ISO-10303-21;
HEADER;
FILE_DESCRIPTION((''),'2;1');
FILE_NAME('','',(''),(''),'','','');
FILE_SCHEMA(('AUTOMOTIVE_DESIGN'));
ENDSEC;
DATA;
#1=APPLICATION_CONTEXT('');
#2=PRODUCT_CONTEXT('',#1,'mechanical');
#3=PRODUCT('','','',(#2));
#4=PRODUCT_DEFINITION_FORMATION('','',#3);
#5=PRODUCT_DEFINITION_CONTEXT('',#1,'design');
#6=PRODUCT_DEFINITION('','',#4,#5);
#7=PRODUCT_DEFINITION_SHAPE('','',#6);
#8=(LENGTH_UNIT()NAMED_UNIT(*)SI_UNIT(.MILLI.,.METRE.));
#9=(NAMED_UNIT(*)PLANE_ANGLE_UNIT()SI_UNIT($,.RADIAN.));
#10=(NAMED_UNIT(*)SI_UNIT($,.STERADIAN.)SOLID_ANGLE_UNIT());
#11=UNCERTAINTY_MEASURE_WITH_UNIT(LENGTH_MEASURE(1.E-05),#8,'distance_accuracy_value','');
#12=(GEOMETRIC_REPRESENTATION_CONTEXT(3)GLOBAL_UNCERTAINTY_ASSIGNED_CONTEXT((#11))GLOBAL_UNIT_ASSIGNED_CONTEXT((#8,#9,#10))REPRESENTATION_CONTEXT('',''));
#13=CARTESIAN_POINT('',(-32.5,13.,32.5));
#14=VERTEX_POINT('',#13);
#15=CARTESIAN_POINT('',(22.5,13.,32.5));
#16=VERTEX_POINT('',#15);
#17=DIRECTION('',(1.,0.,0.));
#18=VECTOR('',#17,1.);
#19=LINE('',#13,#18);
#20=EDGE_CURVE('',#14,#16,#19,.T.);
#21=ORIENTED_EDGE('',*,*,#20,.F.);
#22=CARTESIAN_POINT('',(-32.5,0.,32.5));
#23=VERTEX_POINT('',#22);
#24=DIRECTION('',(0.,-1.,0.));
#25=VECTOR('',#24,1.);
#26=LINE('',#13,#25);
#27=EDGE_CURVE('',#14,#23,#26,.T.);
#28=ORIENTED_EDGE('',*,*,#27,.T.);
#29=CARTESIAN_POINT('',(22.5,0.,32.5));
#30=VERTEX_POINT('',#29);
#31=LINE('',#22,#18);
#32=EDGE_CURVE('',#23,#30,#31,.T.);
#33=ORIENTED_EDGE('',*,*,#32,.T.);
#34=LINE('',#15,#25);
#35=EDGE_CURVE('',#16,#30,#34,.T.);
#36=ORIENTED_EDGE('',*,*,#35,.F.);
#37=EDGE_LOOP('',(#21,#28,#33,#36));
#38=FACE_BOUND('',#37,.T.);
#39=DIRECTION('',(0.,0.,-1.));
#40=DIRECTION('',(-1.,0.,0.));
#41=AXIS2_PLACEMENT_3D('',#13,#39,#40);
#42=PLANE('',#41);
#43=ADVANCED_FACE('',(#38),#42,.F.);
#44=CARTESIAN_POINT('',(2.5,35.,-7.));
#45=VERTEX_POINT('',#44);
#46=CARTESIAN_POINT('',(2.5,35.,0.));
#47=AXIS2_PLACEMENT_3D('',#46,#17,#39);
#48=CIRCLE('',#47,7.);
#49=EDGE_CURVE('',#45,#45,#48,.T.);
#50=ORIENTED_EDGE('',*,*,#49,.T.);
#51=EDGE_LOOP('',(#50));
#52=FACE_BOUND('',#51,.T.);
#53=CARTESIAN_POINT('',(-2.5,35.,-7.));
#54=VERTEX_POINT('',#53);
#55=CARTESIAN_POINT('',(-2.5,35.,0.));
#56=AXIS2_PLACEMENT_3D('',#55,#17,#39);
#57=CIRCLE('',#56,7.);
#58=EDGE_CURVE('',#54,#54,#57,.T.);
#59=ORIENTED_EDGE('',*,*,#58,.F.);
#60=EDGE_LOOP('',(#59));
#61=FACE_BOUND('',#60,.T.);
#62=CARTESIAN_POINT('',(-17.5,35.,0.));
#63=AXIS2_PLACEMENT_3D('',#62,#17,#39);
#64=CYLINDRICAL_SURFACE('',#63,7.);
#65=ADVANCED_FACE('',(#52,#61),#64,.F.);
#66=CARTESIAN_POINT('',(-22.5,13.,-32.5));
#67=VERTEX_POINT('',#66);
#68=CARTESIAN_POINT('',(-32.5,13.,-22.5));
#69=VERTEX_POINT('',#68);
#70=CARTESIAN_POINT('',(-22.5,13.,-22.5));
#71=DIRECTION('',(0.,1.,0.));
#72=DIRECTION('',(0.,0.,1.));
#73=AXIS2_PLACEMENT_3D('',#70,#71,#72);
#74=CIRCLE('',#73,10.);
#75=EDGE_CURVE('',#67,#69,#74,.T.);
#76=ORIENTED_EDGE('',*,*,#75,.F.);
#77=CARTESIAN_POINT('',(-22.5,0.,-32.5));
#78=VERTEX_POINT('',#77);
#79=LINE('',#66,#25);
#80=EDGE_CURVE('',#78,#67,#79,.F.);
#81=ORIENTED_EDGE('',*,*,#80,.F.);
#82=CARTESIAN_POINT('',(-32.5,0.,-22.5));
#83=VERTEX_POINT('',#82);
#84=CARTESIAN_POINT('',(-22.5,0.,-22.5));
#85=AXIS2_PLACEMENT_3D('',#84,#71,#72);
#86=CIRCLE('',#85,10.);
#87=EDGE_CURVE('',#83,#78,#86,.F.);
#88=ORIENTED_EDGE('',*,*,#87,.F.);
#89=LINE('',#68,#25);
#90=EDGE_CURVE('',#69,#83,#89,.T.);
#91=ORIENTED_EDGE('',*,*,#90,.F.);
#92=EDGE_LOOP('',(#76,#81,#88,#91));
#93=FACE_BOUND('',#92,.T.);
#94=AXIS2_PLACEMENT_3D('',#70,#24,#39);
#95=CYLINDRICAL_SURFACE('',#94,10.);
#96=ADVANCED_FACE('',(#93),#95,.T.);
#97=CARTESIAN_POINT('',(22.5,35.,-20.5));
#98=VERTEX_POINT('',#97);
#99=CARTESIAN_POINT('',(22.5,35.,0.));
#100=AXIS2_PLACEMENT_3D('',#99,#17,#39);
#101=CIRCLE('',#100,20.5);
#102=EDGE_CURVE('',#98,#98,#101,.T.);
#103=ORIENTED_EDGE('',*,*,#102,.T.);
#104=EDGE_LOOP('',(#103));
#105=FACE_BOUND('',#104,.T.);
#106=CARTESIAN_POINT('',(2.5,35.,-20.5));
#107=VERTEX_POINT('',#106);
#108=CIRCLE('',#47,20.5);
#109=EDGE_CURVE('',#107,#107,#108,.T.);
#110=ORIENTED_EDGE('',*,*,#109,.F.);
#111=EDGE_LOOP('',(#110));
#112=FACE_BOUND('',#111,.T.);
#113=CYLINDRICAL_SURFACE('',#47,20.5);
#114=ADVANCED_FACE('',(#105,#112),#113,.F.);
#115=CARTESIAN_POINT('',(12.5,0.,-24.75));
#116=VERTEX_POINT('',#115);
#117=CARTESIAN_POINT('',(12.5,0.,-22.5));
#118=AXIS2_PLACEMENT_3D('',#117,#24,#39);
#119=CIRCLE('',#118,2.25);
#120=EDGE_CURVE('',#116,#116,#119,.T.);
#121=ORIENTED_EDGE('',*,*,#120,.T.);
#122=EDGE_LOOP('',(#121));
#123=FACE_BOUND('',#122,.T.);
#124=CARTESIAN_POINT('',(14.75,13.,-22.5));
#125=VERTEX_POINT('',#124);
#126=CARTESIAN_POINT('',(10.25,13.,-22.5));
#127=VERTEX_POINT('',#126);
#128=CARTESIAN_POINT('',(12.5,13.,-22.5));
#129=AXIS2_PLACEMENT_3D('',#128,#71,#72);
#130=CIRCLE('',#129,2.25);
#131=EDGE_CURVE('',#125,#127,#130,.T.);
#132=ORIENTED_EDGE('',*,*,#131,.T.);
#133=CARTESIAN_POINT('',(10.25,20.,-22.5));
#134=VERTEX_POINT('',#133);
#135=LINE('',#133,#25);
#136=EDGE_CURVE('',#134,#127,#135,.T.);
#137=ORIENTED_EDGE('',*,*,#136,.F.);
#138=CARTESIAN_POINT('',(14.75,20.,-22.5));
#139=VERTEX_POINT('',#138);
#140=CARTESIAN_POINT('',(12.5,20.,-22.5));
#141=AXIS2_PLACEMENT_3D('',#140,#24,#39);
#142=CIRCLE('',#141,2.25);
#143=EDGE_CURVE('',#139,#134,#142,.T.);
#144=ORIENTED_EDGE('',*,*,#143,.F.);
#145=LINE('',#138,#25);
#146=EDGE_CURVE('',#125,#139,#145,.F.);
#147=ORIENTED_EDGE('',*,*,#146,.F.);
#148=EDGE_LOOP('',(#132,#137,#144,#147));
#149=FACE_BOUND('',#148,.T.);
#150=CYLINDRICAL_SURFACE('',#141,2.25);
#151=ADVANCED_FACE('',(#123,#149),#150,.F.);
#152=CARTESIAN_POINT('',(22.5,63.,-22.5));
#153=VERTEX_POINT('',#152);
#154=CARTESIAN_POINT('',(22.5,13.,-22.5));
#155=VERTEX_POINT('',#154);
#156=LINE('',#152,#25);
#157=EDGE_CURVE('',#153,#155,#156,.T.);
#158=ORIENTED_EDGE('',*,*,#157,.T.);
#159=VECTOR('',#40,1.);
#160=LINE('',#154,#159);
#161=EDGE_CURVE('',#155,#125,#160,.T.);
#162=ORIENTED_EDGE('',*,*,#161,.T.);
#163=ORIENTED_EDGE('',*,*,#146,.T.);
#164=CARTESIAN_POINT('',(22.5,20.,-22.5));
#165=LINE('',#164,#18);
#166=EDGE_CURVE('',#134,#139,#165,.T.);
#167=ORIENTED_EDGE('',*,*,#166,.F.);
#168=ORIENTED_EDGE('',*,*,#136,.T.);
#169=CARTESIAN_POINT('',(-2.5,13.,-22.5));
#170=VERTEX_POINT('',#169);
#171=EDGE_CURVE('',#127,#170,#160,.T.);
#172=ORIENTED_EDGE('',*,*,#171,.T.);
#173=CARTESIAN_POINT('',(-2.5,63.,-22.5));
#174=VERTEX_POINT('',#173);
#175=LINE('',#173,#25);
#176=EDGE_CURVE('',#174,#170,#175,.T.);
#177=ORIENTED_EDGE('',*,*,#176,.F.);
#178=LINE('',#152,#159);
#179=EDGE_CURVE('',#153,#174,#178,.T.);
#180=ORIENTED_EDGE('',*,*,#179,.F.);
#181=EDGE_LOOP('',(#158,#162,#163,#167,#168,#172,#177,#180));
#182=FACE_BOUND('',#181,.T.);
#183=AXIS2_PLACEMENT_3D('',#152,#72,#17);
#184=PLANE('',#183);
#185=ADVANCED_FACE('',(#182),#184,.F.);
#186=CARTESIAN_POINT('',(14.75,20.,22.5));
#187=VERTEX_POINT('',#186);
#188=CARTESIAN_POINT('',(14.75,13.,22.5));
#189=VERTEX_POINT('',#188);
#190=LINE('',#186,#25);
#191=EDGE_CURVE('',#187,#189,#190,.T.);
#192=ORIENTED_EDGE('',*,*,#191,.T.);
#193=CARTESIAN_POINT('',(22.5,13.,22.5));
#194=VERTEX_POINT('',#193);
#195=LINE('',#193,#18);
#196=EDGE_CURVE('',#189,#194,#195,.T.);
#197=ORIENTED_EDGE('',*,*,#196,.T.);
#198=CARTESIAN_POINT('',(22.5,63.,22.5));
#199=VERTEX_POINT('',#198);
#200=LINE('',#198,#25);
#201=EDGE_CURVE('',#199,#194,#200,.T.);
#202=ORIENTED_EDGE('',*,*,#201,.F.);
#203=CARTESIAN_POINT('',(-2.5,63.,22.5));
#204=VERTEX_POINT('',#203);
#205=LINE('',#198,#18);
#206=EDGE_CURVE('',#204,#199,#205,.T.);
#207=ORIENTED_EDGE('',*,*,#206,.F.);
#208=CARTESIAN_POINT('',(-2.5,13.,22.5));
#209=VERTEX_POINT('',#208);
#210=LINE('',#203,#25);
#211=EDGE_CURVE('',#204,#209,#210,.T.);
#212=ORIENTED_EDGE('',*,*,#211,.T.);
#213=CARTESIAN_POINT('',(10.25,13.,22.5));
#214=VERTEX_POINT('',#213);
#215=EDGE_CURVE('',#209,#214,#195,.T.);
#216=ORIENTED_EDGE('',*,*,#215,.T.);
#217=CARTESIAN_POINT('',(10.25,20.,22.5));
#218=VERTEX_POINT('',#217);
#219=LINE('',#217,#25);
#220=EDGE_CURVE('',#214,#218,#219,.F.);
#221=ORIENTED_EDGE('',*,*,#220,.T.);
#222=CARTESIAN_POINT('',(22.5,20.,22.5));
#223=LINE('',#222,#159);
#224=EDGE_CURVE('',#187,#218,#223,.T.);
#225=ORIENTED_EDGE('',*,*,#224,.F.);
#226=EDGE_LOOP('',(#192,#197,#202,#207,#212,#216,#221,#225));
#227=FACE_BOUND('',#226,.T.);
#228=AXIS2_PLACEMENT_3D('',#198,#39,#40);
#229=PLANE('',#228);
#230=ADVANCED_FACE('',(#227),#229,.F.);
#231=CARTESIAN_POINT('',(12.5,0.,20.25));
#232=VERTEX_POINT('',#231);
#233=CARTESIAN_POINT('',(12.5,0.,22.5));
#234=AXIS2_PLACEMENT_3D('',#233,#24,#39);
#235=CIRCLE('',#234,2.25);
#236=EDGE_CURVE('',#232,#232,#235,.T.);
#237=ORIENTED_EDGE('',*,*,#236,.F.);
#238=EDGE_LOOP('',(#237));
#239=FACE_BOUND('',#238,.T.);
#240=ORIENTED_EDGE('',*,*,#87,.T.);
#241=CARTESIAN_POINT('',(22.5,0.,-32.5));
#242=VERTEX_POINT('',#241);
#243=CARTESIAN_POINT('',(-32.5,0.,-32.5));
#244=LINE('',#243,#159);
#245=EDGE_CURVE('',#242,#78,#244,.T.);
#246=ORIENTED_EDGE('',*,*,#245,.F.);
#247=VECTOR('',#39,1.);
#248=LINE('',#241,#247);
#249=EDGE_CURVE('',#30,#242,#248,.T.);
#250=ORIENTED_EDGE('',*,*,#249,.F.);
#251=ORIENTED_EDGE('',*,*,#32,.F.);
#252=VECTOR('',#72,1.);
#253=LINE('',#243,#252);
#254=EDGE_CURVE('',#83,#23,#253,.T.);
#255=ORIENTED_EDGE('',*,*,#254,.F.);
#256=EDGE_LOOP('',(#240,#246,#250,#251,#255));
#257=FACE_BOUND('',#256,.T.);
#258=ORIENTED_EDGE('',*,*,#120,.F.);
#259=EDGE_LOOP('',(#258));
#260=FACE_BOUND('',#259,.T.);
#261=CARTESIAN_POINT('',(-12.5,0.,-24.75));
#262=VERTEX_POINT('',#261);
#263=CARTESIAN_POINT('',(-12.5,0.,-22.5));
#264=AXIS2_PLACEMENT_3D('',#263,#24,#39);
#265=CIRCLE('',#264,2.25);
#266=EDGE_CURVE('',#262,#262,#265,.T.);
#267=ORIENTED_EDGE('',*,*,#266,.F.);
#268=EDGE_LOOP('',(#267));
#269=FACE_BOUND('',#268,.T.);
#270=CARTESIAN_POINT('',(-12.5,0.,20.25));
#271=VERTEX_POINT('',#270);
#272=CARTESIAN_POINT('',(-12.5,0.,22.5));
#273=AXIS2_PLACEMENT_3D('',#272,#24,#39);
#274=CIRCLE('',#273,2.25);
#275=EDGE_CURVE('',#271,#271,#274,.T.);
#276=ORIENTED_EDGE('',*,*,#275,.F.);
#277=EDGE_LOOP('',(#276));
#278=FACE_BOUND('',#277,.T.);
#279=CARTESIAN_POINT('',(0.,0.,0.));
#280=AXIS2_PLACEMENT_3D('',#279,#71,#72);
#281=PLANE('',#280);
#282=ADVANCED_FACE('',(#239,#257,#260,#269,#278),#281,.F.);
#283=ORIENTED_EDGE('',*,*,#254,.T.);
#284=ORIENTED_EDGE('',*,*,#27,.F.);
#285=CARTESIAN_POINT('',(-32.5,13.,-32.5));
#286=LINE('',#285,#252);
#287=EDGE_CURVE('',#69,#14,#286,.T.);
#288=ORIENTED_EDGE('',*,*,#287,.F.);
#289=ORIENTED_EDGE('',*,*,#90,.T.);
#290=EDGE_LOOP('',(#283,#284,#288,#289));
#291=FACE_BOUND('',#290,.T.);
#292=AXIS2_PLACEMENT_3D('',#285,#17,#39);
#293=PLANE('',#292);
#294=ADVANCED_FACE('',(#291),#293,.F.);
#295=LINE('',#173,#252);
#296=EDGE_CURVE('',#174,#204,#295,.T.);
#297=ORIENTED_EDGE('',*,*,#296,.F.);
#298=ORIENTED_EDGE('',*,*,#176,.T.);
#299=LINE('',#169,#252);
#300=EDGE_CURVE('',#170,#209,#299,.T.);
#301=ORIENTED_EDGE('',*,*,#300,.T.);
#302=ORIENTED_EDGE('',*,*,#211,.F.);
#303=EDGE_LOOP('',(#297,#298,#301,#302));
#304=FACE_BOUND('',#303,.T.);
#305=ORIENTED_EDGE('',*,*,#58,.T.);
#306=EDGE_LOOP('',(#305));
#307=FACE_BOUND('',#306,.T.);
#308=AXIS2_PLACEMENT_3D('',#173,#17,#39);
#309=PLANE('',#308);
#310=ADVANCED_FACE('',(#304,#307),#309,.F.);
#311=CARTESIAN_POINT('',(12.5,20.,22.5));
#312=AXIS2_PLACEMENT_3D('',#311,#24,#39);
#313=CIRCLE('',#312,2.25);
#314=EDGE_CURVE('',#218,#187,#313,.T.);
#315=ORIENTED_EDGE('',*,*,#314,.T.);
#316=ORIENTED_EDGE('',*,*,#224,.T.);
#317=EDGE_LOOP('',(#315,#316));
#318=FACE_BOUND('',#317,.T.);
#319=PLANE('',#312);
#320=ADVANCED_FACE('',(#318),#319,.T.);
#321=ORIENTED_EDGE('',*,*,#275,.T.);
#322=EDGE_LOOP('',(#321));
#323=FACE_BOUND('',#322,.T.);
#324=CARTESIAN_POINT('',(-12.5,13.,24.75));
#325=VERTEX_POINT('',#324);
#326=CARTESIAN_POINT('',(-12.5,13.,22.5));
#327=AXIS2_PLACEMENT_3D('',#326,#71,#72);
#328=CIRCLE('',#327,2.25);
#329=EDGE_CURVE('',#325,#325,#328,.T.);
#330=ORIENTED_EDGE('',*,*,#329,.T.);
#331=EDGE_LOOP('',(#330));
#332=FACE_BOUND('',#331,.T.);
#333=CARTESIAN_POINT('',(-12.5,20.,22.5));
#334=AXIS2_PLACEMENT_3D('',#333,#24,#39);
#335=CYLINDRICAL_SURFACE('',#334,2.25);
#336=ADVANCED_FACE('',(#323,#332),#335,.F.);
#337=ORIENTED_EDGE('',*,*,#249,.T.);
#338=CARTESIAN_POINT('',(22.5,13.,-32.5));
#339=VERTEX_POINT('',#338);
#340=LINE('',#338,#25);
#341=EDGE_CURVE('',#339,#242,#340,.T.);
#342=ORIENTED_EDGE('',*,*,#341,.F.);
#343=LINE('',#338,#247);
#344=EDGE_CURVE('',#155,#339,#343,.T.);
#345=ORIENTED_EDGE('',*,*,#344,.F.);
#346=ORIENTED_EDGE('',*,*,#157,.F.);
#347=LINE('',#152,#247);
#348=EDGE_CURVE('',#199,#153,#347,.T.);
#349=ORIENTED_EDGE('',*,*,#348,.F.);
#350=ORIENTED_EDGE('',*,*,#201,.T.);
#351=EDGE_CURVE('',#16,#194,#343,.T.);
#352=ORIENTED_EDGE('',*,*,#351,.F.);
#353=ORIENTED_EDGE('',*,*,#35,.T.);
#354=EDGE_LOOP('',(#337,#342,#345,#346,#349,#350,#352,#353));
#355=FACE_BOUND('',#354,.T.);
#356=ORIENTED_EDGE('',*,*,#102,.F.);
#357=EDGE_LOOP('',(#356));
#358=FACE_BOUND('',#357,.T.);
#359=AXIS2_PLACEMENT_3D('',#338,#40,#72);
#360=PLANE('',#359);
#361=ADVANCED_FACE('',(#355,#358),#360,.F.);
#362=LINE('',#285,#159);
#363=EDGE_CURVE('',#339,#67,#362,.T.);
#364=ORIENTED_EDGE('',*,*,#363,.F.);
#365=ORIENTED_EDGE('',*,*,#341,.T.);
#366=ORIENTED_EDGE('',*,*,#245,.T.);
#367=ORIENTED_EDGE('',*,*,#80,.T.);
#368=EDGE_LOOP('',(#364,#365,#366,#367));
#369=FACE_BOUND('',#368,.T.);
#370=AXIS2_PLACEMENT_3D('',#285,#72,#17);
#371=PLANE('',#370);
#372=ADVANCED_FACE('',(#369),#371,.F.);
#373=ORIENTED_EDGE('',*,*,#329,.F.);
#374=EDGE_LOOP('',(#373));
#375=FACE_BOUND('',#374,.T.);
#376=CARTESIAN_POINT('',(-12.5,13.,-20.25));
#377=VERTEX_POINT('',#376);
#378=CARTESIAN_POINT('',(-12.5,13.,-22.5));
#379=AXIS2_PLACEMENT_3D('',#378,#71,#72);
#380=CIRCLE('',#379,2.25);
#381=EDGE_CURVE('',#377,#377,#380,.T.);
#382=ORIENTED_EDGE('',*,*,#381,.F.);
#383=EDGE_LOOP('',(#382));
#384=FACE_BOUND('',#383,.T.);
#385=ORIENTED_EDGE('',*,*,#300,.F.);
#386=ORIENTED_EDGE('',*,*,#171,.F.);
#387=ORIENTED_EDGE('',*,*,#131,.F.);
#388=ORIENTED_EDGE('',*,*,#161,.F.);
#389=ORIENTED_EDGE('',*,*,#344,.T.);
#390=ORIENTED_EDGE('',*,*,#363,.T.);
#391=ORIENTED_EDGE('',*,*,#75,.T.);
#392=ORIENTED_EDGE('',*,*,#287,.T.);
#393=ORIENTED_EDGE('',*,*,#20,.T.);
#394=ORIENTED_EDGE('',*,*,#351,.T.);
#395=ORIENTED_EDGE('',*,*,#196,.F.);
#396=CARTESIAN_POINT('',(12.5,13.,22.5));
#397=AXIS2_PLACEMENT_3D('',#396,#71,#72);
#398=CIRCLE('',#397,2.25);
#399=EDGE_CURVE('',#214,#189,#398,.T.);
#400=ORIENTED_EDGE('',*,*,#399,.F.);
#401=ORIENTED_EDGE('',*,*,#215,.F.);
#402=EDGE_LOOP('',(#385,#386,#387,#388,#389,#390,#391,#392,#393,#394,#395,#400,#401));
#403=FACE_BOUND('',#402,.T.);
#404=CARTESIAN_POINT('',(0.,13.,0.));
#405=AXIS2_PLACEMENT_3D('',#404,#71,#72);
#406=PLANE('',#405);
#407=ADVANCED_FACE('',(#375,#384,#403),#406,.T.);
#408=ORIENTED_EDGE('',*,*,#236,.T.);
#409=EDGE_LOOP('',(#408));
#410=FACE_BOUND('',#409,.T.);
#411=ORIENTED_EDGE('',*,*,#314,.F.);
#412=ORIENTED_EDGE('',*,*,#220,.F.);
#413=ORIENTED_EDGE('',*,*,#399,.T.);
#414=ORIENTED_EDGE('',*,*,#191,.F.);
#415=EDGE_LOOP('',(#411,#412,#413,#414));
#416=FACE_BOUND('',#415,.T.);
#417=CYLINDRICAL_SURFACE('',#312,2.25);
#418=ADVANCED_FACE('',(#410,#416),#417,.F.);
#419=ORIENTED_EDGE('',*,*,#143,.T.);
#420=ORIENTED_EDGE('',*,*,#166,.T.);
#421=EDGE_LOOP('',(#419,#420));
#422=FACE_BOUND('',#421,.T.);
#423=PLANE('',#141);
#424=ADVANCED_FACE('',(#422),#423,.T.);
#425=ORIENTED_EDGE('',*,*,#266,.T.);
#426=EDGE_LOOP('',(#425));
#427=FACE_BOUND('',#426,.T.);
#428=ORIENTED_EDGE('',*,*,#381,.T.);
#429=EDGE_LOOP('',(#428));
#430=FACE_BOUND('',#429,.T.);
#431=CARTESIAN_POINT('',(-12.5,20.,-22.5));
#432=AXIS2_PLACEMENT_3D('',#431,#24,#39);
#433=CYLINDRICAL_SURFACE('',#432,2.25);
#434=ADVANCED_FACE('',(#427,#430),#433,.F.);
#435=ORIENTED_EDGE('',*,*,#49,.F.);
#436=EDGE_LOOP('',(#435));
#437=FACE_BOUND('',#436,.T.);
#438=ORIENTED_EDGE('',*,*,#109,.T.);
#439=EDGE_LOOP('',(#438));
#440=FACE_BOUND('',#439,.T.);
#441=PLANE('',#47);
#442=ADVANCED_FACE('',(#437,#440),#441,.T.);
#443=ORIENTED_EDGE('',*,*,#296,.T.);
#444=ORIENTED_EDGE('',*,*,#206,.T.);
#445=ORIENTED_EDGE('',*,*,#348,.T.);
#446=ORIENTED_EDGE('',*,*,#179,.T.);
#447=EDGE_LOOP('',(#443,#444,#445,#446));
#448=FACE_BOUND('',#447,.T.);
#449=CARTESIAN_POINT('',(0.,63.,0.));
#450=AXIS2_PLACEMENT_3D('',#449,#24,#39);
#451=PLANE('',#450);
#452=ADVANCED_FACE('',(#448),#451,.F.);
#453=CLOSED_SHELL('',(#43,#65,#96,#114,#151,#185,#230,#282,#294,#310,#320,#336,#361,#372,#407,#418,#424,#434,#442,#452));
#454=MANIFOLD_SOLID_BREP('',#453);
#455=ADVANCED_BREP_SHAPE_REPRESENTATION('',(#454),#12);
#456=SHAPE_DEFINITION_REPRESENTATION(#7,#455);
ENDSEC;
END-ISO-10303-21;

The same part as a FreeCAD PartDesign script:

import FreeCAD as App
import Part
import Sketcher
Q = App.Units.Quantity


def edges_at(feature, points):
    """Names of the edges that pass closest to the given points."""
    edges = feature.Shape.Edges
    near = lambda p: min(range(len(edges)), key=lambda i: edges[i].distToShape(Part.Vertex(*p))[0])
    return sorted({f"Edge{near(p) + 1}" for p in points})


def add_polygon(sketch, points):
    """Adds a closed chain of lines whose ends are joined by coincident constraints."""
    first, n = sketch.GeometryCount, len(points)
    for a, b in zip(points, points[1:] + points[:1]):
        sketch.addGeometry(Part.LineSegment(App.Vector(*a, 0), App.Vector(*b, 0)), False)
    for i in range(n):
        sketch.addConstraint(Sketcher.Constraint("Coincident", first + i, 2, first + (i + 1) % n, 1))

doc = App.newDocument("Part")
body = doc.addObject("PartDesign::Body", "Body")

sketch1 = body.newObject("Sketcher::SketchObject", "Sketch")
sketch1.AttachmentSupport = (doc.getObject("XZ_Plane"), [""])
sketch1.MapMode = "FlatFace"
add_polygon(sketch1, [(-32.5, -32.5), (-32.5, 32.5), (22.5, 32.5), (22.5, -32.5)])
sketch1.addConstraint([
    Sketcher.Constraint("Vertical", 0),
    Sketcher.Constraint("Horizontal", 1),
    Sketcher.Constraint("Vertical", 2),
    Sketcher.Constraint("Horizontal", 3),
    Sketcher.Constraint("DistanceX", 1, 1, 1, 2, Q("55 mm")),
    Sketcher.Constraint("DistanceY", 0, 1, 0, 2, Q("65 mm")),
    Sketcher.Constraint("DistanceX", 0, 2, -1, 1, Q("32.5 mm")),
    Sketcher.Constraint("DistanceY", -1, 1, 0, 2, Q("32.5 mm")),
])
pad1 = body.newObject("PartDesign::Pad", "Pad")
pad1.Profile = sketch1
pad1.Length = 13
pad1.Reversed = True

sketch2 = body.newObject("Sketcher::SketchObject", "Sketch001")
sketch2.AttachmentSupport = (doc.getObject("XZ_Plane"), [""])
sketch2.MapMode = "FlatFace"
sketch2.AttachmentOffset = App.Placement(App.Vector(0, 0, -13), App.Rotation())
add_polygon(sketch2, [(-2.5, -22.5), (-2.5, 22.5), (22.5, 22.5), (22.5, -22.5)])
sketch2.addConstraint([
    Sketcher.Constraint("Vertical", 0),
    Sketcher.Constraint("Horizontal", 1),
    Sketcher.Constraint("Vertical", 2),
    Sketcher.Constraint("Horizontal", 3),
    Sketcher.Constraint("DistanceX", 1, 1, 1, 2, Q("25 mm")),
    Sketcher.Constraint("DistanceY", 0, 1, 0, 2, Q("45 mm")),
    Sketcher.Constraint("DistanceX", 0, 2, -1, 1, Q("2.5 mm")),
    Sketcher.Constraint("DistanceY", -1, 1, 0, 2, Q("22.5 mm")),
])
pad2 = body.newObject("PartDesign::Pad", "Pad001")
pad2.Profile = sketch2
pad2.Length = 50
pad2.Reversed = True

sketch3 = body.newObject("Sketcher::SketchObject", "Sketch002")
sketch3.AttachmentSupport = (doc.getObject("YZ_Plane"), [""])
sketch3.MapMode = "FlatFace"
sketch3.AttachmentOffset = App.Placement(App.Vector(0, 0, 22.5), App.Rotation())
sketch3.addGeometry(Part.Circle(App.Vector(35, 0, 0), App.Vector(0, 0, 1), 20.5), False)
sketch3.addConstraint([
    Sketcher.Constraint("PointOnObject", 0, 3, -1),
    Sketcher.Constraint("Diameter", 0, Q("41 mm")),
    Sketcher.Constraint("DistanceX", -1, 1, 0, 3, Q("35 mm")),
])
pocket1 = body.newObject("PartDesign::Pocket", "Pocket")
pocket1.Profile = sketch3
pocket1.Length = 20

sketch4 = body.newObject("Sketcher::SketchObject", "Sketch003")
sketch4.AttachmentSupport = (doc.getObject("YZ_Plane"), [""])
sketch4.MapMode = "FlatFace"
sketch4.AttachmentOffset = App.Placement(App.Vector(0, 0, 2.5), App.Rotation())
sketch4.addGeometry(Part.Circle(App.Vector(35, 0, 0), App.Vector(0, 0, 1), 7), False)
sketch4.addConstraint([
    Sketcher.Constraint("PointOnObject", 0, 3, -1),
    Sketcher.Constraint("Diameter", 0, Q("14 mm")),
    Sketcher.Constraint("DistanceX", -1, 1, 0, 3, Q("35 mm")),
])
pocket2 = body.newObject("PartDesign::Pocket", "Pocket001")
pocket2.Profile = sketch4
pocket2.Length = 20

sketch5 = body.newObject("Sketcher::SketchObject", "Sketch004")
sketch5.AttachmentSupport = (doc.getObject("XZ_Plane"), [""])
sketch5.MapMode = "FlatFace"
sketch5.addGeometry([
    Part.Circle(App.Vector(-12.5, 22.5, 0), App.Vector(0, 0, 1), 2.25),
    Part.Circle(App.Vector(-12.5, -22.5, 0), App.Vector(0, 0, 1), 2.25),
    Part.Circle(App.Vector(12.5, -22.5, 0), App.Vector(0, 0, 1), 2.25),
    Part.Circle(App.Vector(12.5, 22.5, 0), App.Vector(0, 0, 1), 2.25),
], False)
sketch5.addConstraint([
    Sketcher.Constraint("Equal", 0, 1),
    Sketcher.Constraint("Equal", 1, 2),
    Sketcher.Constraint("Equal", 2, 3),
    Sketcher.Constraint("Symmetric", 0, 3, 2, 3, -1, 1),
    Sketcher.Constraint("Symmetric", 1, 3, 3, 3, -1, 1),
    Sketcher.Constraint("Symmetric", 1, 3, 2, 3, -2),
    Sketcher.Constraint("Diameter", 0, Q("4.5 mm")),
    Sketcher.Constraint("DistanceY", 1, 3, 0, 3, Q("45 mm")),
    Sketcher.Constraint("DistanceX", 1, 3, 2, 3, Q("25 mm")),
])
pocket3 = body.newObject("PartDesign::Pocket", "Pocket002")
pocket3.Profile = sketch5
pocket3.Length = 20
doc.recompute()

fillet = body.newObject("PartDesign::Fillet", "Fillet")
fillet.Base = (pocket3, edges_at(pocket3, [(-32.5, 6.5, -32.5)]))
fillet.Radius = 10

doc.recompute()
